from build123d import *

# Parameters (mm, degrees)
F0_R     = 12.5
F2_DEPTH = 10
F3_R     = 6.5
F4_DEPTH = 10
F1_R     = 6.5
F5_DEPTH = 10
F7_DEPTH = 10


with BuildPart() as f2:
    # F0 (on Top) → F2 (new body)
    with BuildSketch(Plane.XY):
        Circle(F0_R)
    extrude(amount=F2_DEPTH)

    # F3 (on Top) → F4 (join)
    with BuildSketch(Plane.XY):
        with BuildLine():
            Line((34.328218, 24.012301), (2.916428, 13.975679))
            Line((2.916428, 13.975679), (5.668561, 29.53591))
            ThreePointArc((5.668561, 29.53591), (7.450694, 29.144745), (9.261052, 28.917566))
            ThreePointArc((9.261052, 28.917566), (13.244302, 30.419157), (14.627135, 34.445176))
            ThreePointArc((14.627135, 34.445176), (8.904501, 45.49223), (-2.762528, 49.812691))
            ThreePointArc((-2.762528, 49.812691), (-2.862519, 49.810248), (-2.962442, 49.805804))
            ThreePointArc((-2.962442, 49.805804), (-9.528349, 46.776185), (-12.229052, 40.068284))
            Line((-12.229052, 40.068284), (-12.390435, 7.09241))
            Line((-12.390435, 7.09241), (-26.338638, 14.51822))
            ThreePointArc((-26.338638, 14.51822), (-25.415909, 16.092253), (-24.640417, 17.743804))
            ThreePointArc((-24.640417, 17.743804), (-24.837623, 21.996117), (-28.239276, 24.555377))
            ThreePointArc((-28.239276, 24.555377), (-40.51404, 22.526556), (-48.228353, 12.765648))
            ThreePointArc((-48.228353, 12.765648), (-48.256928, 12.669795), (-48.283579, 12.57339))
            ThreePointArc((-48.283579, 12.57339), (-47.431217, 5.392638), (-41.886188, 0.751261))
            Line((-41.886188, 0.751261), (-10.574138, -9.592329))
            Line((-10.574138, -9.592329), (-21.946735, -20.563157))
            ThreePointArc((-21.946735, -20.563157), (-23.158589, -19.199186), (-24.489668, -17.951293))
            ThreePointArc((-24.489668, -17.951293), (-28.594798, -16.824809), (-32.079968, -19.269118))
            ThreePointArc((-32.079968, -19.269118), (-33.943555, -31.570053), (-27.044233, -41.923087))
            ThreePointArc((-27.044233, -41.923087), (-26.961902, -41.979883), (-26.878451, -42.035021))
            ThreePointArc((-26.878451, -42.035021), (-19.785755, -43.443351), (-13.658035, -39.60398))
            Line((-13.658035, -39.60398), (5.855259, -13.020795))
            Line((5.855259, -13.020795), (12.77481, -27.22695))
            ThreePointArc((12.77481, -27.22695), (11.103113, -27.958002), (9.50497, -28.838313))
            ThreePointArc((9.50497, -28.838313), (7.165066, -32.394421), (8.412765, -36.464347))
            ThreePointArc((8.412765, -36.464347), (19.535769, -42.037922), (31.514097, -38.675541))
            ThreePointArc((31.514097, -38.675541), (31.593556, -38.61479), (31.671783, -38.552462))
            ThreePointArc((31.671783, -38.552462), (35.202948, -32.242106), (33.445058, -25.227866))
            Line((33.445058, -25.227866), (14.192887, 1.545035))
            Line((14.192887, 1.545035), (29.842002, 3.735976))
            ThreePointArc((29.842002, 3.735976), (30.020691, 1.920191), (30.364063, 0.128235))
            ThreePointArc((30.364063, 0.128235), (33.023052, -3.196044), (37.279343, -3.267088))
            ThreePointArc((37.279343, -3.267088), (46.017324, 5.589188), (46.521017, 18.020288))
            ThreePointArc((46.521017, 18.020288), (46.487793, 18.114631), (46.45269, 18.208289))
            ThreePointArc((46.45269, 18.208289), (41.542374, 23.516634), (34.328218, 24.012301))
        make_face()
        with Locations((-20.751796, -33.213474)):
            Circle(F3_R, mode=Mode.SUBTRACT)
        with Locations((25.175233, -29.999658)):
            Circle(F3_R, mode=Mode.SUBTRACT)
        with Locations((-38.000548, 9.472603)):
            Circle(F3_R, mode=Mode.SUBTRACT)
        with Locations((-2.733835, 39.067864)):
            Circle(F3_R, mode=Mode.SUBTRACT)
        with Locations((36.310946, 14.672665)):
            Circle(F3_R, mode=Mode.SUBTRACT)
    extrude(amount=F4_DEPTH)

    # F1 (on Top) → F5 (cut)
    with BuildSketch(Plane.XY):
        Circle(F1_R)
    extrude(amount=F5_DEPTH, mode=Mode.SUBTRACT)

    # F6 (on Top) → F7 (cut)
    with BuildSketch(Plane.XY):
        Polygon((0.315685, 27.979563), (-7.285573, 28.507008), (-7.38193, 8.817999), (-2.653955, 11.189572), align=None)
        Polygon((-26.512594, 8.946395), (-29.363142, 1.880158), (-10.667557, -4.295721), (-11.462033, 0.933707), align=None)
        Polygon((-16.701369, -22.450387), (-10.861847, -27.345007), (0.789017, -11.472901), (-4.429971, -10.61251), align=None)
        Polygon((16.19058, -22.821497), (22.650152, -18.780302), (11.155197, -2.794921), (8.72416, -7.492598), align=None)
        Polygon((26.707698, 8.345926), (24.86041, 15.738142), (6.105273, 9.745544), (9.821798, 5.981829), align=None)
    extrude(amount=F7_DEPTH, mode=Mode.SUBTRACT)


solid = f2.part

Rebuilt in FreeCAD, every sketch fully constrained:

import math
import FreeCAD as App
import Part
import Sketcher
from FreeCAD import Vector
Q = App.Units.Quantity


def add_polygon(sketch, points):
    """Adds a closed chain of lines whose ends are joined by coincident constraints."""
    first, n = sketch.GeometryCount, len(points)
    for a, b in zip(points, points[1:] + points[:1]):
        sketch.addGeometry(Part.LineSegment(App.Vector(*a, 0), App.Vector(*b, 0)), False)
    for i in range(n):
        sketch.addConstraint(Sketcher.Constraint("Coincident", first + i, 2, first + (i + 1) % n, 1))

doc = App.newDocument("Part")
body = doc.addObject("PartDesign::Body", "Body")

# Sketch on XY plane
sketch1 = body.newObject("Sketcher::SketchObject", "Sketch")
sketch1.AttachmentSupport = (doc.getObject("XY_Plane"), [""])
sketch1.MapMode = "FlatFace"
sketch1.addGeometry(Part.Circle(Vector(0, 0, 0), Vector(0, 0, 1), 12), False)
sketch1.addConstraint([
    Sketcher.Constraint("Coincident", 0, 3, -1, 1),
    Sketcher.Constraint("Diameter", 0, Q("25 mm")),
])
pad1 = body.newObject("PartDesign::Pad", "Pad")
pad1.Profile = sketch1
pad1.Length = 10

# Sketch on XY plane
sketch2 = body.newObject("Sketcher::SketchObject", "Sketch001")
sketch2.AttachmentSupport = (doc.getObject("XY_Plane"), [""])
sketch2.MapMode = "FlatFace"
sketch2.addGeometry([
    Part.LineSegment(Vector(34.328218, 24.012301, 0), Vector(2.916428, 13.975679, 0)),  # 0
    Part.LineSegment(Vector(2.916428, 13.975679, 0), Vector(5.668561, 29.53591, 0)),  # 1
    Part.ArcOfCircle(Part.Circle(Vector(10.844314, 48.861198, 0), Vector(0, 0, 1), 20.006379), math.radians(-104.993244), math.radians(-94.539012)),  # 2
    Part.ArcOfCircle(Part.Circle(Vector(9.656739, 33.901885, 0), Vector(0, 0, 1), 5), math.radians(-94.538983), math.radians(6.237973)),  # 3
    Part.ArcOfCircle(Part.Circle(Vector(-2.513665, 32.571595, 0), Vector(0, 0, 1), 17.242892), math.radians(6.237972), math.radians(90.826966)),  # 4
    Part.ArcOfCircle(Part.Circle(Vector(-2.690485, 44.816463, 0), Vector(0, 0, 1), 4.996747), math.radians(90.826124), math.radians(93.119974)),  # 5
    Part.ArcOfCircle(Part.Circle(Vector(-2.429171, 40.020325, 0), Vector(0, 0, 1), 9.799999), math.radians(93.119316), math.radians(179.719608)),  # 6
    Part.LineSegment(Vector(-12.229052, 40.068284, 0), Vector(-12.390435, 7.09241, 0)),  # 7
    Part.LineSegment(Vector(-12.390435, 7.09241, 0), Vector(-26.338638, 14.51822, 0)),  # 8
    Part.ArcOfCircle(Part.Circle(Vector(-43.118783, 25.412547, 0), Vector(0, 0, 1), 20.00649), math.radians(-32.993212), math.radians(-22.539036)),  # 9
    Part.ArcOfCircle(Part.Circle(Vector(-29.258511, 19.660364, 0), Vector(0, 0, 1), 4.999999), math.radians(-22.538987), math.radians(78.237986)),  # 10
    Part.ArcOfCircle(Part.Circle(Vector(-31.754193, 7.674538, 0), Vector(0, 0, 1), 17.242893), math.radians(78.237972), math.radians(162.826964)),  # 11
    Part.ArcOfCircle(Part.Circle(Vector(-43.453102, 11.289899, 0), Vector(0, 0, 1), 4.998085), math.radians(162.8267), math.radians(165.119936)),  # 12
    Part.ArcOfCircle(Part.Circle(Vector(-38.812245, 10.056682, 0), Vector(0, 0, 1), 9.799999), math.radians(165.119319), math.radians(251.719598)),  # 13
    Part.LineSegment(Vector(-41.886188, 0.751261, 0), Vector(-10.574138, -9.592329, 0)),  # 14
    Part.LineSegment(Vector(-10.574138, -9.592329, 0), Vector(-21.946735, -20.563157, 0)),  # 15
    Part.ArcOfCircle(Part.Circle(Vector(-37.49296, -33.155252, 0), Vector(0, 0, 1), 20.006148), math.radians(39.006698), math.radians(49.461051)),  # 16
    Part.ArcOfCircle(Part.Circle(Vector(-27.739495, -21.751111, 0), Vector(0, 0, 1), 4.999999), math.radians(49.460996), math.radians(150.23798)),  # 17
    Part.ArcOfCircle(Part.Circle(Vector(-17.111505, -27.828468, 0), Vector(0, 0, 1), 17.242893), math.radians(150.237973), math.radians(234.826968)),  # 18
    Part.ArcOfCircle(Part.Circle(Vector(-24.163997, -37.835993, 0), Vector(0, 0, 1), 5.00001), math.radians(-125.17292), math.radians(-122.880571)),  # 19
    Part.ArcOfCircle(Part.Circle(Vector(-21.558116, -33.804951, 0), Vector(0, 0, 1), 9.800001), math.radians(-122.880679), math.radians(-36.28041)),  # 20
    Part.LineSegment(Vector(-13.658035, -39.60398, 0), Vector(5.855259, -13.020795, 0)),  # 21
    Part.LineSegment(Vector(5.855259, -13.020795, 0), Vector(12.77481, -27.22695, 0)),  # 22
    Part.ArcOfCircle(Part.Circle(Vector(19.946601, -45.903548, 0), Vector(0, 0, 1), 20.006247), math.radians(111.006727), math.radians(121.46103)),  # 23
    Part.ArcOfCircle(Part.Circle(Vector(12.114561, -33.10329, 0), Vector(0, 0, 1), 5), math.radians(121.461011), math.radians(222.237973)),  # 24
    Part.ArcOfCircle(Part.Circle(Vector(21.178701, -24.873478, 0), Vector(0, 0, 1), 17.242893), math.radians(-137.76203), math.radians(-53.173036)),  # 25
    Part.ArcOfCircle(Part.Circle(Vector(28.517587, -34.67393, 0), Vector(0, 0, 1), 4.999196), math.radians(-53.173183), math.radians(-50.880449)),  # 26
    Part.ArcOfCircle(Part.Circle(Vector(25.488597, -30.949292, 0), Vector(0, 0, 1), 9.799999), math.radians(-50.880683), math.radians(35.719601)),  # 27
    Part.LineSegment(Vector(33.445058, -25.227866, 0), Vector(14.192887, 1.545035, 0)),  # 28
    Part.LineSegment(Vector(14.192887, 1.545035, 0), Vector(29.842002, 3.735976, 0)),  # 29
    Part.ArcOfCircle(Part.Circle(Vector(49.820751, 4.785374, 0), Vector(0, 0, 1), 20.006291), math.radians(-176.993263), math.radians(-166.538984)),  # 30
    Part.ArcOfCircle(Part.Circle(Vector(35.226705, 1.292152, 0), Vector(0, 0, 1), 4.999999), math.radians(-166.538998), math.radians(-65.762018)),  # 31
    Part.ArcOfCircle(Part.Circle(Vector(30.20066, 12.455814, 0), Vector(0, 0, 1), 17.242894), math.radians(-65.762023), math.radians(18.826961)),  # 32
    Part.ArcOfCircle(Part.Circle(Vector(41.786456, 16.405978, 0), Vector(0, 0, 1), 5.002206), math.radians(18.827474), math.radians(21.118819)),  # 33
    Part.ArcOfCircle(Part.Circle(Vector(37.310935, 14.677237, 0), Vector(0, 0, 1), 9.800001), math.radians(21.119321), math.radians(107.719592)),  # 34
    Part.Circle(Vector(-20.751796, -33.213474, 0), Vector(0, 0, 1), 6.5),  # 35
    Part.Circle(Vector(25.175233, -29.999658, 0), Vector(0, 0, 1), 6.5),  # 36
    Part.Circle(Vector(-38.000548, 9.472603, 0), Vector(0, 0, 1), 6.5),  # 37
    Part.Circle(Vector(-2.733835, 39.067864, 0), Vector(0, 0, 1), 6.5),  # 38
    Part.Circle(Vector(36.310946, 14.672665, 0), Vector(0, 0, 1), 6.5),  # 39
], False)
sketch2.addConstraint([
    Sketcher.Constraint("Coincident", 0, 2, 1, 1),
    Sketcher.Constraint("Coincident", 1, 2, 2, 1),
    Sketcher.Constraint("Coincident", 2, 2, 3, 1),
    Sketcher.Constraint("Coincident", 3, 2, 4, 1),
    Sketcher.Constraint("Coincident", 4, 2, 5, 1),
    Sketcher.Constraint("Coincident", 5, 2, 6, 1),
    Sketcher.Constraint("Coincident", 6, 2, 7, 1),
    Sketcher.Constraint("Coincident", 7, 2, 8, 1),
    Sketcher.Constraint("Coincident", 8, 2, 9, 1),
    Sketcher.Constraint("Coincident", 9, 2, 10, 1),
    Sketcher.Constraint("Coincident", 10, 2, 11, 1),
    Sketcher.Constraint("Coincident", 11, 2, 12, 1),
    Sketcher.Constraint("Coincident", 12, 2, 13, 1),
    Sketcher.Constraint("Coincident", 13, 2, 14, 1),
    Sketcher.Constraint("Coincident", 14, 2, 15, 1),
    Sketcher.Constraint("Coincident", 15, 2, 16, 1),
    Sketcher.Constraint("Coincident", 16, 2, 17, 1),
    Sketcher.Constraint("Coincident", 17, 2, 18, 1),
    Sketcher.Constraint("Coincident", 18, 2, 19, 1),
    Sketcher.Constraint("Coincident", 19, 2, 20, 1),
    Sketcher.Constraint("Coincident", 20, 2, 21, 1),
    Sketcher.Constraint("Coincident", 21, 2, 22, 1),
    Sketcher.Constraint("Coincident", 22, 2, 23, 1),
    Sketcher.Constraint("Coincident", 23, 2, 24, 1),
    Sketcher.Constraint("Coincident", 24, 2, 25, 1),
    Sketcher.Constraint("Coincident", 25, 2, 26, 1),
    Sketcher.Constraint("Coincident", 26, 2, 27, 1),
    Sketcher.Constraint("Coincident", 27, 2, 28, 1),
    Sketcher.Constraint("Coincident", 28, 2, 29, 1),
    Sketcher.Constraint("Coincident", 29, 2, 30, 1),
    Sketcher.Constraint("Coincident", 30, 2, 31, 1),
    Sketcher.Constraint("Coincident", 31, 2, 32, 1),
    Sketcher.Constraint("Coincident", 32, 2, 33, 1),
    Sketcher.Constraint("Coincident", 33, 2, 34, 1),
    Sketcher.Constraint("Coincident", 34, 2, 0, 1),
    Sketcher.Constraint("Diameter", 35, Q("13 mm")),
    Sketcher.Constraint("Diameter", 36, Q("13 mm")),
    Sketcher.Constraint("Diameter", 37, Q("13 mm")),
    Sketcher.Constraint("Diameter", 38, Q("13 mm")),
    Sketcher.Constraint("Diameter", 39, Q("13 mm")),
    Sketcher.Constraint("Radius", 3, Q("5 mm")),
    Sketcher.Constraint("Radius", 10, Q("4.999999 mm")),
    Sketcher.Constraint("Radius", 17, Q("4.999999 mm")),
    Sketcher.Constraint("Radius", 24, Q("5 mm")),
    Sketcher.Constraint("Radius", 31, Q("4.999999 mm")),
    Sketcher.Constraint("Radius", 6, Q("9.799999 mm")),
    Sketcher.Constraint("Radius", 13, Q("9.799999 mm")),
    Sketcher.Constraint("Radius", 20, Q("9.800001 mm")),
    Sketcher.Constraint("Radius", 27, Q("9.799999 mm")),
    Sketcher.Constraint("Radius", 34, Q("9.800001 mm")),
    Sketcher.Constraint("Radius", 2, Q("20.006379 mm")),
    Sketcher.Constraint("Radius", 9, Q("20.00649 mm")),
    Sketcher.Constraint("Radius", 16, Q("20.006148 mm")),
    Sketcher.Constraint("Radius", 19, Q("5.00001 mm")),
    Sketcher.Constraint("Radius", 30, Q("20.006291 mm")),
    Sketcher.Constraint("Radius", 4, Q("17.242892 mm")),
    Sketcher.Constraint("Radius", 5, Q("4.996747 mm")),
    Sketcher.Constraint("Radius", 11, Q("17.242893 mm")),
    Sketcher.Constraint("Radius", 12, Q("4.998085 mm")),
    Sketcher.Constraint("Radius", 18, Q("17.242893 mm")),
    Sketcher.Constraint("Radius", 23, Q("20.006247 mm")),
    Sketcher.Constraint("Radius", 25, Q("17.242893 mm")),
    Sketcher.Constraint("Radius", 26, Q("4.999196 mm")),
    Sketcher.Constraint("Radius", 32, Q("17.242894 mm")),
    Sketcher.Constraint("Radius", 33, Q("5.002206 mm")),
    Sketcher.Constraint("DistanceY", -1, 1, 2, 3, Q("48.861198 mm")),
    Sketcher.Constraint("DistanceX", 12, 3, -1, 1, Q("43.453102 mm")),
    Sketcher.Constraint("DistanceY", -1, 1, 12, 3, Q("11.289899 mm")),
    Sketcher.Constraint("DistanceX", -1, 1, 23, 3, Q("19.946601 mm")),
    Sketcher.Constraint("DistanceX", -1, 1, 25, 3, Q("21.178701 mm")),
    Sketcher.Constraint("DistanceY", -1, 1, 34, 2, Q("24.012301 mm")),
    Sketcher.Constraint("Distance", 0, Q("32.976269 mm")),
    Sketcher.Constraint("Distance", 1, Q("15.801741 mm")),
    Sketcher.Constraint("Distance", 7, Q("32.976269 mm")),
    Sketcher.Constraint("Distance", 8, Q("15.801741 mm")),
    Sketcher.Constraint("Distance", 14, Q("32.976269 mm")),
    Sketcher.Constraint("Distance", 15, Q("15.801741 mm")),
    Sketcher.Constraint("Distance", 21, Q("32.97627 mm")),
    Sketcher.Constraint("Distance", 22, Q("15.801741 mm")),
    Sketcher.Constraint("Distance", 28, Q("32.976269 mm")),
    Sketcher.Constraint("Distance", 29, Q("15.801741 mm")),
    Sketcher.Constraint("DistanceX", -1, 1, 3, 3, Q("9.656739 mm")),
    Sketcher.Constraint("DistanceX", 6, 3, -1, 1, Q("2.429171 mm")),
    Sketcher.Constraint("DistanceX", 10, 3, -1, 1, Q("29.258511 mm")),
    Sketcher.Constraint("DistanceY", -1, 1, 11, 3, Q("7.674538 mm")),
    Sketcher.Constraint("DistanceX", 16, 3, -1, 1, Q("37.49296 mm")),
    Sketcher.Constraint("DistanceY", 16, 3, -1, 1, Q("33.155252 mm")),
    Sketcher.Constraint("DistanceY", 17, 3, -1, 1, Q("21.751111 mm")),
    Sketcher.Constraint("DistanceY", 18, 3, -1, 1, Q("27.828468 mm")),
    Sketcher.Constraint("DistanceY", 20, 3, -1, 1, Q("33.804951 mm")),
    Sketcher.Constraint("DistanceY", 23, 3, -1, 1, Q("45.903548 mm")),
    Sketcher.Constraint("DistanceX", -1, 1, 24, 3, Q("12.114561 mm")),
    Sketcher.Constraint("DistanceY", 26, 3, -1, 1, Q("34.67393 mm")),
    Sketcher.Constraint("DistanceY", 27, 3, -1, 1, Q("30.949292 mm")),
    Sketcher.Constraint("DistanceX", -1, 1, 30, 3, Q("49.820751 mm")),
    Sketcher.Constraint("DistanceX", -1, 1, 32, 3, Q("30.20066 mm")),
    Sketcher.Constraint("DistanceY", -1, 1, 33, 3, Q("16.405978 mm")),
    Sketcher.Constraint("DistanceY", 36, 3, -1, 1, Q("29.999658 mm")),
    Sketcher.Constraint("DistanceX", 37, 3, -1, 1, Q("38.000548 mm")),
    Sketcher.Constraint("DistanceY", -1, 1, 0, 2, Q("13.975679 mm")),
    Sketcher.Constraint("DistanceX", -1, 1, 1, 2, Q("5.668561 mm")),
    Sketcher.Constraint("DistanceY", -1, 1, 1, 2, Q("29.53591 mm")),
    Sketcher.Constraint("DistanceX", 4, 2, -1, 1, Q("2.762528 mm")),
    Sketcher.Constraint("DistanceY", -1, 1, 4, 2, Q("49.812691 mm")),
    Sketcher.Constraint("DistanceX", 5, 2, -1, 1, Q("2.962442 mm")),
    Sketcher.Constraint("DistanceY", -1, 1, 7, 2, Q("7.09241 mm")),
    Sketcher.Constraint("DistanceY", -1, 1, 8, 2, Q("14.51822 mm")),
    Sketcher.Constraint("DistanceY", -1, 1, 11, 2, Q("12.765648 mm")),
    Sketcher.Constraint("DistanceX", 12, 2, -1, 1, Q("48.283579 mm")),
    Sketcher.Constraint("DistanceX", 13, 2, -1, 1, Q("41.886188 mm")),
    Sketcher.Constraint("DistanceY", -1, 1, 13, 2, Q("0.751261 mm")),
    Sketcher.Constraint("DistanceY", 14, 2, -1, 1, Q("9.592329 mm")),
    Sketcher.Constraint("DistanceX", 17, 2, -1, 1, Q("32.079968 mm")),
    Sketcher.Constraint("DistanceX", 19, 2, -1, 1, Q("26.878451 mm")),
    Sketcher.Constraint("DistanceY", 19, 2, -1, 1, Q("42.035021 mm")),
    Sketcher.Constraint("DistanceY", 20, 2, -1, 1, Q("39.60398 mm")),
    Sketcher.Constraint("DistanceX", -1, 1, 21, 2, Q("5.855259 mm")),
    Sketcher.Constraint("DistanceX", -1, 1, 23, 2, Q("9.50497 mm")),
    Sketcher.Constraint("DistanceY", 25, 2, -1, 1, Q("38.675541 mm")),
    Sketcher.Constraint("DistanceY", 26, 2, -1, 1, Q("38.552462 mm")),
    Sketcher.Constraint("DistanceY", 31, 2, -1, 1, Q("3.267088 mm")),
    Sketcher.Constraint("DistanceY", -1, 1, 32, 2, Q("18.020288 mm")),
    Sketcher.Constraint("DistanceX", -1, 1, 33, 2, Q("46.45269 mm")),
    Sketcher.Constraint("DistanceY", -1, 1, 33, 2, Q("18.208289 mm")),
    Sketcher.Constraint("DistanceX", 5, 3, -1, 1, Q("2.690485 mm")),
    Sketcher.Constraint("DistanceX", 9, 3, -1, 1, Q("43.118783 mm")),
    Sketcher.Constraint("DistanceY", -1, 1, 30, 3, Q("4.785374 mm")),
    Sketcher.Constraint("DistanceX", 35, 3, -1, 1, Q("20.751796 mm")),
    Sketcher.Constraint("DistanceY", 35, 3, -1, 1, Q("33.213474 mm")),
    Sketcher.Constraint("DistanceX", -1, 1, 36, 3, Q("25.175233 mm")),
    Sketcher.Constraint("DistanceY", -1, 1, 37, 3, Q("9.472603 mm")),
    Sketcher.Constraint("DistanceX", 38, 3, -1, 1, Q("2.733835 mm")),
    Sketcher.Constraint("DistanceY", -1, 1, 38, 3, Q("39.067864 mm")),
    Sketcher.Constraint("DistanceX", -1, 1, 39, 3, Q("36.310946 mm")),
    Sketcher.Constraint("DistanceY", -1, 1, 39, 3, Q("14.672665 mm")),
    Sketcher.Constraint("DistanceX", -1, 1, 2, 2, Q("9.261052 mm")),
    Sketcher.Constraint("DistanceX", -1, 1, 3, 2, Q("14.627135 mm")),
    Sketcher.Constraint("DistanceX", 9, 2, -1, 1, Q("24.640417 mm")),
    Sketcher.Constraint("DistanceX", 10, 2, -1, 1, Q("28.239276 mm")),
    Sketcher.Constraint("DistanceX", 16, 2, -1, 1, Q("24.489668 mm")),
    Sketcher.Constraint("DistanceX", 18, 2, -1, 1, Q("27.044233 mm")),
    Sketcher.Constraint("DistanceX", -1, 1, 24, 2, Q("8.412765 mm")),
    Sketcher.Constraint("DistanceX", -1, 1, 27, 2, Q("33.445058 mm")),
    Sketcher.Constraint("DistanceX", -1, 1, 28, 2, Q("14.192887 mm")),
    Sketcher.Constraint("DistanceX", -1, 1, 30, 2, Q("30.364063 mm")),
])
pad2 = body.newObject("PartDesign::Pad", "Pad001")
pad2.Profile = sketch2
pad2.Length = 10

# Sketch on XY plane
sketch3 = body.newObject("Sketcher::SketchObject", "Sketch002")
sketch3.AttachmentSupport = (doc.getObject("XY_Plane"), [""])
sketch3.MapMode = "FlatFace"
sketch3.addGeometry(Part.Circle(Vector(0, 0, 0), Vector(0, 0, 1), 6), False)
sketch3.addConstraint([
    Sketcher.Constraint("Coincident", 0, 3, -1, 1),
    Sketcher.Constraint("Diameter", 0, Q("13 mm")),
])
pocket1 = body.newObject("PartDesign::Pocket", "Pocket")
pocket1.Profile = sketch3
pocket1.Length = 10
pocket1.Reversed = True

# Sketch on XY plane
sketch4 = body.newObject("Sketcher::SketchObject", "Sketch003")
sketch4.AttachmentSupport = (doc.getObject("XY_Plane"), [""])
sketch4.MapMode = "FlatFace"
add_polygon(sketch4, [(0, 28), (-7, 29), (-7, 9), (-3, 11)])  # lines 0-3
add_polygon(sketch4, [(-27, 9), (-29, 2), (-11, -4), (-11, 1)])  # lines 4-7
add_polygon(sketch4, [(-17, -22), (-11, -27), (1, -11), (-4, -11)])  # lines 8-11
add_polygon(sketch4, [(16, -23), (23, -19), (11, -3), (9, -7)])  # lines 12-15
add_polygon(sketch4, [(27, 8), (25, 16), (6, 10), (10, 6)])  # lines 16-19
sketch4.addConstraint([
    Sketcher.Constraint("Equal", 0, 4),
    Sketcher.Constraint("Equal", 1, 5),
    Sketcher.Constraint("Equal", 2, 6),
    Sketcher.Constraint("Equal", 3, 7),
    Sketcher.Constraint("Equal", 4, 8),
    Sketcher.Constraint("Equal", 5, 9),
    Sketcher.Constraint("Equal", 6, 10),
    Sketcher.Constraint("Equal", 7, 11),
    Sketcher.Constraint("Equal", 8, 12),
    Sketcher.Constraint("Equal", 9, 13),
    Sketcher.Constraint("Equal", 10, 14),
    Sketcher.Constraint("Equal", 11, 15),
    Sketcher.Constraint("Equal", 12, 16),
    Sketcher.Constraint("Equal", 13, 17),
    Sketcher.Constraint("Equal", 14, 18),
    Sketcher.Constraint("Equal", 15, 19),
    Sketcher.Constraint("DistanceY", -1, 1, 1, 2, Q("8.817999 mm")),
    Sketcher.Constraint("DistanceX", 8, 2, 12, 2, Q("33.511999 mm")),
    Sketcher.Constraint("DistanceY", 9, 2, -1, 1, Q("11.472901 mm")),
    Sketcher.Constraint("DistanceY", 12, 2, -1, 1, Q("18.780302 mm")),
    Sketcher.Constraint("DistanceX", -1, 1, 19, 2, Q("26.707698 mm")),
    Sketcher.Constraint("DistanceY", 6, 2, 0, 2, Q("27.573301 mm")),
    Sketcher.Constraint("DistanceY", 15, 2, 14, 2, Q("15.328899 mm")),
    Sketcher.Constraint("DistanceX", 18, 2, 13, 2, Q("1.333399 mm")),
    Sketcher.Constraint("DistanceX", 18, 2, 19, 2, Q("16.8859 mm")),
    Sketcher.Constraint("Distance", 3, Q("17.050588 mm")),
    Sketcher.Constraint("DistanceX", 1, 2, -1, 1, Q("7.38193 mm")),
    Sketcher.Constraint("DistanceX", 4, 2, -1, 1, Q("29.363142 mm")),
    Sketcher.Constraint("DistanceY", 5, 2, -1, 1, Q("4.295721 mm")),
    Sketcher.Constraint("DistanceX", 10, 2, -1, 1, Q("4.429971 mm")),
    Sketcher.Constraint("DistanceY", 10, 2, -1, 1, Q("10.61251 mm")),
    Sketcher.Constraint("DistanceX", 11, 2, -1, 1, Q("16.701369 mm")),
    Sketcher.Constraint("DistanceX", -1, 1, 12, 2, Q("22.650152 mm")),
    Sketcher.Constraint("DistanceY", 13, 2, -1, 1, Q("2.794921 mm")),
    Sketcher.Constraint("DistanceX", -1, 1, 14, 2, Q("8.72416 mm")),
    Sketcher.Constraint("DistanceX", -1, 1, 16, 2, Q("24.86041 mm")),
    Sketcher.Constraint("DistanceY", -1, 1, 18, 2, Q("5.981829 mm")),
    Sketcher.Constraint("DistanceX", 0, 2, 2, 2, Q("4.631618 mm")),
    Sketcher.Constraint("DistanceX", 0, 2, 3, 2, Q("7.601258 mm")),
    Sketcher.Constraint("DistanceY", 4, 2, 1, 2, Q("6.937841 mm")),
])
pocket2 = body.newObject("PartDesign::Pocket", "Pocket001")
pocket2.Profile = sketch4
pocket2.Length = 10
pocket2.Reversed = True

doc.recompute()
